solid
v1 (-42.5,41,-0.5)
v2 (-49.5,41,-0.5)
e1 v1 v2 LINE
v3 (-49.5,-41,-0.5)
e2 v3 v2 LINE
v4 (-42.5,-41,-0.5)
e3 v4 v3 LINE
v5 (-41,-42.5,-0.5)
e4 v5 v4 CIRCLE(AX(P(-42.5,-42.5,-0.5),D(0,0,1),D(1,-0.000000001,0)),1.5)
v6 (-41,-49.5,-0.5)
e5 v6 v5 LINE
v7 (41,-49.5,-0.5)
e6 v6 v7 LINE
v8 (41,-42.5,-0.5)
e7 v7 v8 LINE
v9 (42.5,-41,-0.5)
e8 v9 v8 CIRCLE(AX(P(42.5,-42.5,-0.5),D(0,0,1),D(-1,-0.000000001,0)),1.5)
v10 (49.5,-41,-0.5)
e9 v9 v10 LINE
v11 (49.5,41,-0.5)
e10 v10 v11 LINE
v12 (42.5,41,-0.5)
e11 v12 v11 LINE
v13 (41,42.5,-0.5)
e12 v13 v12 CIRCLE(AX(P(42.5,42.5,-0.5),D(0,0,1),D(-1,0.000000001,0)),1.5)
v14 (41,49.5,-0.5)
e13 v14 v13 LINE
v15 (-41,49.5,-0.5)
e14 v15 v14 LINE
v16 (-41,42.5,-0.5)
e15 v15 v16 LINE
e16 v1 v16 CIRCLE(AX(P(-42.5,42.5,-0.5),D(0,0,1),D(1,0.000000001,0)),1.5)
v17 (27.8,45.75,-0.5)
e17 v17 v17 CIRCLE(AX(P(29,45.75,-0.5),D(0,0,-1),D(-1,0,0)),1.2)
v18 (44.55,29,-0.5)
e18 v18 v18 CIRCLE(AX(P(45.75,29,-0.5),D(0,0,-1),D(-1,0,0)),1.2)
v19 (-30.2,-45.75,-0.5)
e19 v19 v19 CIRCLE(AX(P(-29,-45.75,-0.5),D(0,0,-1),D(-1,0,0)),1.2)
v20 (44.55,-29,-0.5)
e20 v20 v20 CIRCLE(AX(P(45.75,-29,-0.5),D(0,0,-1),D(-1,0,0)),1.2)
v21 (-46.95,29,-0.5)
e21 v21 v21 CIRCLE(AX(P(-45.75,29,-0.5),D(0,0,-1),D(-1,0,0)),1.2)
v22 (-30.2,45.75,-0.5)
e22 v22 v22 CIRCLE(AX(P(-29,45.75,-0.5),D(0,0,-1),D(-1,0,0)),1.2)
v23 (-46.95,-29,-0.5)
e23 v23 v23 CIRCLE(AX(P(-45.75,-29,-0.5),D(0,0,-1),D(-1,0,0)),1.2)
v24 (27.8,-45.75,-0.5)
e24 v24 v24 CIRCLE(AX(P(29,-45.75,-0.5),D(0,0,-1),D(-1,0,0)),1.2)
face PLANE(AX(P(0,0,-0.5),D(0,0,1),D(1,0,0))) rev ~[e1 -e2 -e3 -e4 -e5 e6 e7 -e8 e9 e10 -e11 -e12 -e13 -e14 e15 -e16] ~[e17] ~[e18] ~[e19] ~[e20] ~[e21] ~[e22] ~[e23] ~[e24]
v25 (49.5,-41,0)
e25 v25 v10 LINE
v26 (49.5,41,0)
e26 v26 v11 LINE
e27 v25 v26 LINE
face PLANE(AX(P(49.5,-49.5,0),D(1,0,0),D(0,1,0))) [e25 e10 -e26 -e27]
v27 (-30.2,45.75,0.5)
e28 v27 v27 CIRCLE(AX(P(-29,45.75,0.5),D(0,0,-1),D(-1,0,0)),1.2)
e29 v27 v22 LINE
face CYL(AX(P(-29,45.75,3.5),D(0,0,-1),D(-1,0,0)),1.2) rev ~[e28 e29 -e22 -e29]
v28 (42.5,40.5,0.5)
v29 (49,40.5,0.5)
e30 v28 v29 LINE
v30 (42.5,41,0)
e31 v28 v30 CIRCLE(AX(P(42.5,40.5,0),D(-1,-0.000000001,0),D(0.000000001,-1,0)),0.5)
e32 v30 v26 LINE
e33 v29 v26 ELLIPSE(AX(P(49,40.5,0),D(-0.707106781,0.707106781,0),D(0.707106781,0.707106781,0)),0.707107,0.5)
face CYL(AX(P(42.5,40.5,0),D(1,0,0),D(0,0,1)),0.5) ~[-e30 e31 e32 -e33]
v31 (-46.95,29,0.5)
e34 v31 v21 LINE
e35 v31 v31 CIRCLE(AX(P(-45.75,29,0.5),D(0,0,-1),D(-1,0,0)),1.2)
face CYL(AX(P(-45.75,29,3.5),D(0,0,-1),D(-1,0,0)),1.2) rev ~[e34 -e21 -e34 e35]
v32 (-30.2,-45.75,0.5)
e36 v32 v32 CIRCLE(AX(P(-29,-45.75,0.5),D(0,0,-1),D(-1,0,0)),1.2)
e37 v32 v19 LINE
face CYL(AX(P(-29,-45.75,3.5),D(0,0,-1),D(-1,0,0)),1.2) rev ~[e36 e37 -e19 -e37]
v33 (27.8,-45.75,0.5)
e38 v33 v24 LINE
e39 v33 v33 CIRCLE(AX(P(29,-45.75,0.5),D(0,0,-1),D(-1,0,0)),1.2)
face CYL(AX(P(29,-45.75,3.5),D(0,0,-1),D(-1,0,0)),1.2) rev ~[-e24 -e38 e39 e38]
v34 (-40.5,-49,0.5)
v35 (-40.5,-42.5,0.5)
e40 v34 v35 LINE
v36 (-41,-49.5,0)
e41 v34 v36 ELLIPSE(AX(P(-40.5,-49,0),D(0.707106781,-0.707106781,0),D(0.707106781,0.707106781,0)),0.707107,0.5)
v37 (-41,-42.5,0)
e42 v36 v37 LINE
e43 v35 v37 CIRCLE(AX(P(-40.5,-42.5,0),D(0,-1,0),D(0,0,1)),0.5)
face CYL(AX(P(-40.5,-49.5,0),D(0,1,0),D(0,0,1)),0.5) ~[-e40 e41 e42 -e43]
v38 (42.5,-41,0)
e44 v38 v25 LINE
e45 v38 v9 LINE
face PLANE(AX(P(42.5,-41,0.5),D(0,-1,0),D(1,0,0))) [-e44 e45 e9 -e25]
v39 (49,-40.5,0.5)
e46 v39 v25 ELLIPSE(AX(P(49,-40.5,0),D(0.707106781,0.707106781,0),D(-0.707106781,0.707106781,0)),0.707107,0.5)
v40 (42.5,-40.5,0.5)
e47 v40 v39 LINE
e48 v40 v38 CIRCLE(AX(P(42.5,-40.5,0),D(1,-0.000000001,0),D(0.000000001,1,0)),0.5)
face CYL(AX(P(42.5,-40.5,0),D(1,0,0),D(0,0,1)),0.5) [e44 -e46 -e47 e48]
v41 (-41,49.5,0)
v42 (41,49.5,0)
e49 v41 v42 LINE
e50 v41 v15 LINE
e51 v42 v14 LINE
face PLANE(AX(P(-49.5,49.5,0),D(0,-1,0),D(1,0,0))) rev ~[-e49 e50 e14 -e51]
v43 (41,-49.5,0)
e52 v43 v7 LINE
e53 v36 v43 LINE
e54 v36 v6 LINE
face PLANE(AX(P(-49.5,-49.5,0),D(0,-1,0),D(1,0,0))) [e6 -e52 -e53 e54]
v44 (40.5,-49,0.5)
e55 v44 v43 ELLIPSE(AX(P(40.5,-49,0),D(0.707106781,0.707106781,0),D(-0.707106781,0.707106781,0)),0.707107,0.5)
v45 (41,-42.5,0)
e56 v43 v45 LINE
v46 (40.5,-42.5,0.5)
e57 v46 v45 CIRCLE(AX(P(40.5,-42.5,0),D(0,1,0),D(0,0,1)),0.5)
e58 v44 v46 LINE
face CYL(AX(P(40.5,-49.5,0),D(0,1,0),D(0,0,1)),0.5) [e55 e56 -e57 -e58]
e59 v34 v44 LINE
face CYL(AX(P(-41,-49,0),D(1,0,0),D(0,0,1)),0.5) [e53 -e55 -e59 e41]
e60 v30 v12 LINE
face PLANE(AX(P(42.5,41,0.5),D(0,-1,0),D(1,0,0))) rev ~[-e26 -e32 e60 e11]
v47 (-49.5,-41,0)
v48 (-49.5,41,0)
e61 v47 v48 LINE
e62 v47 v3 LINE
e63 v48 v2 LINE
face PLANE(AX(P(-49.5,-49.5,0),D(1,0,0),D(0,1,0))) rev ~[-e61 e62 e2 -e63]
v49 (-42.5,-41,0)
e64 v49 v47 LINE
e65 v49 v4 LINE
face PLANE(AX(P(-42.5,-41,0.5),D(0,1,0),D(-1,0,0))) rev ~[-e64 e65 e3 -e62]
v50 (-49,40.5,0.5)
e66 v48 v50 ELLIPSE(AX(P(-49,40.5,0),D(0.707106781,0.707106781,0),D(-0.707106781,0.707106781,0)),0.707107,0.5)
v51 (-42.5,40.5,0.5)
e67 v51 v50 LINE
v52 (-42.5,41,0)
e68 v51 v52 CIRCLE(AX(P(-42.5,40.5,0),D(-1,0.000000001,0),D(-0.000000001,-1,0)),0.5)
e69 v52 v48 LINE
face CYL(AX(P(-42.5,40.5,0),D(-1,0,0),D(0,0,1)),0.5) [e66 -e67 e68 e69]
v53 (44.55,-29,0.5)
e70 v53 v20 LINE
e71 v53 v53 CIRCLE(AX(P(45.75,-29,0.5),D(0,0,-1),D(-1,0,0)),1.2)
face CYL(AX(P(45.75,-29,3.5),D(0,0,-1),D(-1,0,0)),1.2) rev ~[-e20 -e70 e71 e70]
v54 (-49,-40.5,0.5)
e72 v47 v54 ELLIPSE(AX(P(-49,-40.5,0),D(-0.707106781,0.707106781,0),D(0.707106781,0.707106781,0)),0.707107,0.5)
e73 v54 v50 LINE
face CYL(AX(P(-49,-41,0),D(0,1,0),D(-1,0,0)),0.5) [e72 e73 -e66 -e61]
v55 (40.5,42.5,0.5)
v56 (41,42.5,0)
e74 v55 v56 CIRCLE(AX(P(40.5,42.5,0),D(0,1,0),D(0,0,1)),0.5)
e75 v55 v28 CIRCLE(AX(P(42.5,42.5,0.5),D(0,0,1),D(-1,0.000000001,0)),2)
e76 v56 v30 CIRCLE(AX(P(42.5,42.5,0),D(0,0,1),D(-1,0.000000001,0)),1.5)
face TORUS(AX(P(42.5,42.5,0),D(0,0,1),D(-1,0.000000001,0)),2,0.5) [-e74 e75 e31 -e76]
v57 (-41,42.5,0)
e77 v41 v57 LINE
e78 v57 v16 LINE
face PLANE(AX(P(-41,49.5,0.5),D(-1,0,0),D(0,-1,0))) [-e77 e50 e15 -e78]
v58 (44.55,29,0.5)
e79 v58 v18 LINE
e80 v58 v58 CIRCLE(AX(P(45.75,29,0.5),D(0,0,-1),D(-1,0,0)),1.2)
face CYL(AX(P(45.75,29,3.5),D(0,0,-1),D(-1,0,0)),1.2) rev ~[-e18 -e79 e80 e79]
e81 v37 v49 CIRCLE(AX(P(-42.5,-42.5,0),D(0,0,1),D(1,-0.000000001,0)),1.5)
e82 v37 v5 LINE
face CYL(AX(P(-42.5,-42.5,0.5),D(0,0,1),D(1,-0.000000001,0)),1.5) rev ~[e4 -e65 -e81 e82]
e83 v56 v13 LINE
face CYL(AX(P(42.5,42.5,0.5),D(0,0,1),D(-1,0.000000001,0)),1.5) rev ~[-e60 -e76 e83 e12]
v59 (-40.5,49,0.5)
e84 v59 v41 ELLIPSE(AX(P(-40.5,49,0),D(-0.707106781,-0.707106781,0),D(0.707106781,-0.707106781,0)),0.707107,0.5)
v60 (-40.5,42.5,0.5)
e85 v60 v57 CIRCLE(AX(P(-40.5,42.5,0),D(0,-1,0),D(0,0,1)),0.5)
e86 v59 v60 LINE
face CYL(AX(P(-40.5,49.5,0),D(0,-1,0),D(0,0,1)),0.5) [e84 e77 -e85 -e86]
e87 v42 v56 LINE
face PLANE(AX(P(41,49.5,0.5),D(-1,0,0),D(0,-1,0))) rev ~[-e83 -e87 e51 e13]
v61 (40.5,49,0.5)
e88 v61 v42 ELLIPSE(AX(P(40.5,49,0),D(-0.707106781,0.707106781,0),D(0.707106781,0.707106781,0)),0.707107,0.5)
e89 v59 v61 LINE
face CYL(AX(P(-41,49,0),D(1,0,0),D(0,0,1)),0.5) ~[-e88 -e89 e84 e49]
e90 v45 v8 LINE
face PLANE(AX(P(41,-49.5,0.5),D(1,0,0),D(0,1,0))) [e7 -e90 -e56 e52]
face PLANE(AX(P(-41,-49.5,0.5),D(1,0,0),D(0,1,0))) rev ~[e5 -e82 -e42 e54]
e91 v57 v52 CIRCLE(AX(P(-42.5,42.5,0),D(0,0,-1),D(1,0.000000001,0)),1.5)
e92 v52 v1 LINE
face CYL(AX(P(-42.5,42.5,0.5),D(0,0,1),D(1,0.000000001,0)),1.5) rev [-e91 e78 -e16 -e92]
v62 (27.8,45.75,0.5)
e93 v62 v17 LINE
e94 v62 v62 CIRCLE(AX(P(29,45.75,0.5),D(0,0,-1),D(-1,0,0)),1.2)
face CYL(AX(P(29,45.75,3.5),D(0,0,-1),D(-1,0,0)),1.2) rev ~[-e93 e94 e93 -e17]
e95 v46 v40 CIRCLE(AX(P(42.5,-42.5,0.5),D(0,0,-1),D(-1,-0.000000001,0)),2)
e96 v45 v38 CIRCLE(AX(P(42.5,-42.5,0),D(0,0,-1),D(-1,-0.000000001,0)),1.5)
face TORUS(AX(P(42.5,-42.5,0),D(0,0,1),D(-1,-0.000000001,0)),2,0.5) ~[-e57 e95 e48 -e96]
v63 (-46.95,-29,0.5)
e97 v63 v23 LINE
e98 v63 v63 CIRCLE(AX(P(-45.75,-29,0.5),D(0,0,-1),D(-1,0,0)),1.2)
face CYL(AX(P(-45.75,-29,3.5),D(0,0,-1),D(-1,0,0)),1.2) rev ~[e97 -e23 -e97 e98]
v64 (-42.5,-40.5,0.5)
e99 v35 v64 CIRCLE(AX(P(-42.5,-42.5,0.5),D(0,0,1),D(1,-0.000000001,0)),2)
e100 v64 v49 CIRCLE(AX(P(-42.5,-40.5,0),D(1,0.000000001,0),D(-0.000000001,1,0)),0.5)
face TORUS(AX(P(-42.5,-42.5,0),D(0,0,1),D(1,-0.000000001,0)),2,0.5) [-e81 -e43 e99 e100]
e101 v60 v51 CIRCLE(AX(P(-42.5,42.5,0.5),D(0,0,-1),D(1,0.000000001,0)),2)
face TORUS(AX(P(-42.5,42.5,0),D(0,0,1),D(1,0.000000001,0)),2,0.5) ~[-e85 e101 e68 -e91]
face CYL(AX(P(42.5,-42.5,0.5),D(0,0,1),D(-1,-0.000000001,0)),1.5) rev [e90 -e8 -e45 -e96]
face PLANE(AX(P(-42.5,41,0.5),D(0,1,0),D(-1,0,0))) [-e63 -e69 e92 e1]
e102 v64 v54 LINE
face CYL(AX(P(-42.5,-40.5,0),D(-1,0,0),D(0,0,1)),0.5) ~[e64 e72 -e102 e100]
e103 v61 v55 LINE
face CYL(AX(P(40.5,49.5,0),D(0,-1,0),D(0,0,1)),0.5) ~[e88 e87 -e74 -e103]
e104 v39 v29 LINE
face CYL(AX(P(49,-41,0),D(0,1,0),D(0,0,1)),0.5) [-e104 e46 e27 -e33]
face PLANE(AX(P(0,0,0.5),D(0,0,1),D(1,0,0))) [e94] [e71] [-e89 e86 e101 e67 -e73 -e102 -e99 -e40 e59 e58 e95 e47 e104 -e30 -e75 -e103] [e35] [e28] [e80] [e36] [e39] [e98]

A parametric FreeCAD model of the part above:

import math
import FreeCAD as App
import Part
import Sketcher
from FreeCAD import Vector
Q = App.Units.Quantity


def edges_at(feature, points):
    """Names of the edges that pass closest to the given points."""
    edges = feature.Shape.Edges
    near = lambda p: min(range(len(edges)), key=lambda i: edges[i].distToShape(Part.Vertex(*p))[0])
    return sorted({f"Edge{near(p) + 1}" for p in points})


def add_polygon(sketch, points):
    """Adds a closed chain of lines whose ends are joined by coincident constraints."""
    first, n = sketch.GeometryCount, len(points)
    for a, b in zip(points, points[1:] + points[:1]):
        sketch.addGeometry(Part.LineSegment(App.Vector(*a, 0), App.Vector(*b, 0)), False)
    for i in range(n):
        sketch.addConstraint(Sketcher.Constraint("Coincident", first + i, 2, first + (i + 1) % n, 1))

doc = App.newDocument("Part")
body = doc.addObject("PartDesign::Body", "Body")

# Sketch on XY plane
sketch1 = body.newObject("Sketcher::SketchObject", "Sketch")
sketch1.AttachmentSupport = (doc.getObject("XY_Plane"), [""])
sketch1.MapMode = "FlatFace"
add_polygon(sketch1, [(-49.5, 49.5), (-49.5, -49.5), (49.5, -49.5), (49.5, 49.5)])  # lines 0-3
sketch1.addConstraint(Sketcher.Constraint("Vertical", 0))
sketch1.addConstraint(Sketcher.Constraint("Horizontal", 1))
sketch1.addConstraint(Sketcher.Constraint("Vertical", 2))
sketch1.addConstraint(Sketcher.Constraint("Horizontal", 3))
sketch1.addConstraint(Sketcher.Constraint("Symmetric", 0, 2, 2, 2, -1, 1))
sketch1.addConstraint(Sketcher.Constraint("Equal", 3, 0))
sketch1.addConstraint(Sketcher.Constraint("DistanceX", 1, 1, 1, 2, Q("99 mm")))
pad1 = body.newObject("PartDesign::Pad", "Pad")
pad1.Profile = sketch1
pad1.Length = 1
pad1.Midplane = True

# Sketch on XY plane
sketch2 = body.newObject("Sketcher::SketchObject", "Sketch001")
sketch2.AttachmentSupport = (doc.getObject("XY_Plane"), [""])
sketch2.MapMode = "FlatFace"
sketch2.AttachmentOffset = App.Placement(Vector(0, 0, 0.5), App.Rotation())
sketch2.addGeometry(Part.LineSegment(Vector(-41, 49.5, 0), Vector(-49.5, 49.5, 0)), False)
sketch2.addGeometry(Part.LineSegment(Vector(-49.5, 49.5, 0), Vector(-49.5, 41, 0)), False)
sketch2.addGeometry(Part.LineSegment(Vector(-49.5, 41, 0), Vector(-42.5, 41, 0)), False)
sketch2.addGeometry(Part.ArcOfCircle(Part.Circle(Vector(-42.5, 42.5, 0), Vector(0, 0, 1), 1.5), math.radians(-90), math.radians(0)), False)
sketch2.addGeometry(Part.LineSegment(Vector(-41, 42.5, 0), Vector(-41, 49.5, 0)), False)
sketch2.addGeometry(Part.LineSegment(Vector(49.5, 49.5, 0), Vector(41, 49.5, 0)), False)
sketch2.addGeometry(Part.LineSegment(Vector(41, 49.5, 0), Vector(41, 42.5, 0)), False)
sketch2.addGeometry(Part.ArcOfCircle(Part.Circle(Vector(42.5, 42.5, 0), Vector(0, 0, 1), 1.5), math.radians(180), math.radians(270)), False)
sketch2.addGeometry(Part.LineSegment(Vector(42.5, 41, 0), Vector(49.5, 41, 0)), False)
sketch2.addGeometry(Part.LineSegment(Vector(49.5, 41, 0), Vector(49.5, 49.5, 0)), False)
sketch2.addGeometry(Part.LineSegment(Vector(-49.5, -49.5, 0), Vector(-41, -49.5, 0)), False)
sketch2.addGeometry(Part.LineSegment(Vector(-41, -49.5, 0), Vector(-41, -42.5, 0)), False)
sketch2.addGeometry(Part.ArcOfCircle(Part.Circle(Vector(-42.5, -42.5, 0), Vector(0, 0, 1), 1.5), math.radians(0), math.radians(90)), False)
sketch2.addGeometry(Part.LineSegment(Vector(-42.5, -41, 0), Vector(-49.5, -41, 0)), False)
sketch2.addGeometry(Part.LineSegment(Vector(-49.5, -41, 0), Vector(-49.5, -49.5, 0)), False)
sketch2.addGeometry(Part.LineSegment(Vector(41, -49.5, 0), Vector(49.5, -49.5, 0)), False)
sketch2.addGeometry(Part.LineSegment(Vector(49.5, -49.5, 0), Vector(49.5, -41, 0)), False)
sketch2.addGeometry(Part.LineSegment(Vector(49.5, -41, 0), Vector(42.5, -41, 0)), False)
sketch2.addGeometry(Part.ArcOfCircle(Part.Circle(Vector(42.5, -42.5, 0), Vector(0, 0, 1), 1.5), math.radians(90), math.radians(180)), False)
sketch2.addGeometry(Part.LineSegment(Vector(41, -42.5, 0), Vector(41, -49.5, 0)), False)
sketch2.addConstraint(Sketcher.Constraint("Coincident", 0, 2, 1, 1))
sketch2.addConstraint(Sketcher.Constraint("Coincident", 1, 2, 2, 1))
sketch2.addConstraint(Sketcher.Constraint("Tangent", 2, 2, 3, 1))
sketch2.addConstraint(Sketcher.Constraint("Tangent", 3, 2, 4, 1))
sketch2.addConstraint(Sketcher.Constraint("Coincident", 4, 2, 0, 1))
sketch2.addConstraint(Sketcher.Constraint("Coincident", 5, 2, 6, 1))
sketch2.addConstraint(Sketcher.Constraint("Tangent", 6, 2, 7, 1))
sketch2.addConstraint(Sketcher.Constraint("Tangent", 7, 2, 8, 1))
sketch2.addConstraint(Sketcher.Constraint("Coincident", 8, 2, 9, 1))
sketch2.addConstraint(Sketcher.Constraint("Coincident", 9, 2, 5, 1))
sketch2.addConstraint(Sketcher.Constraint("Coincident", 10, 2, 11, 1))
sketch2.addConstraint(Sketcher.Constraint("Tangent", 11, 2, 12, 1))
sketch2.addConstraint(Sketcher.Constraint("Tangent", 12, 2, 13, 1))
sketch2.addConstraint(Sketcher.Constraint("Coincident", 13, 2, 14, 1))
sketch2.addConstraint(Sketcher.Constraint("Coincident", 14, 2, 10, 1))
sketch2.addConstraint(Sketcher.Constraint("Coincident", 15, 2, 16, 1))
sketch2.addConstraint(Sketcher.Constraint("Coincident", 16, 2, 17, 1))
sketch2.addConstraint(Sketcher.Constraint("Tangent", 17, 2, 18, 1))
sketch2.addConstraint(Sketcher.Constraint("Tangent", 18, 2, 19, 1))
sketch2.addConstraint(Sketcher.Constraint("Coincident", 19, 2, 15, 1))
sketch2.addConstraint(Sketcher.Constraint("Horizontal", 0))
sketch2.addConstraint(Sketcher.Constraint("Vertical", 1))
sketch2.addConstraint(Sketcher.Constraint("Horizontal", 2))
sketch2.addConstraint(Sketcher.Constraint("Vertical", 4))
sketch2.addConstraint(Sketcher.Constraint("Horizontal", 5))
sketch2.addConstraint(Sketcher.Constraint("Vertical", 6))
sketch2.addConstraint(Sketcher.Constraint("Horizontal", 8))
sketch2.addConstraint(Sketcher.Constraint("Vertical", 9))
sketch2.addConstraint(Sketcher.Constraint("Horizontal", 10))
sketch2.addConstraint(Sketcher.Constraint("Vertical", 11))
sketch2.addConstraint(Sketcher.Constraint("Horizontal", 13))
sketch2.addConstraint(Sketcher.Constraint("Vertical", 14))
sketch2.addConstraint(Sketcher.Constraint("Horizontal", 15))
sketch2.addConstraint(Sketcher.Constraint("Vertical", 16))
sketch2.addConstraint(Sketcher.Constraint("Horizontal", 17))
sketch2.addConstraint(Sketcher.Constraint("Vertical", 19))
sketch2.addConstraint(Sketcher.Constraint("Equal", 3, 7))
sketch2.addConstraint(Sketcher.Constraint("Equal", 7, 12))
sketch2.addConstraint(Sketcher.Constraint("Equal", 12, 18))
sketch2.addConstraint(Sketcher.Constraint("Symmetric", 7, 3, 12, 3, -1, 1))
sketch2.addConstraint(Sketcher.Constraint("Symmetric", 3, 3, 18, 3, -1, 1))
sketch2.addConstraint(Sketcher.Constraint("Symmetric", 9, 2, 14, 2, -1, 1))
sketch2.addConstraint(Sketcher.Constraint("Symmetric", 0, 2, 15, 2, -1, 1))
sketch2.addConstraint(Sketcher.Constraint("Symmetric", 3, 3, 7, 3, -2))
sketch2.addConstraint(Sketcher.Constraint("Symmetric", 0, 2, 9, 2, -2))
sketch2.addConstraint(Sketcher.Constraint("Equal", 15, 1))
sketch2.addConstraint(Sketcher.Constraint("Radius", 3, Q("1.5 mm")))
sketch2.addConstraint(Sketcher.Constraint("DistanceX", 2, 1, 2, 2, Q("7 mm")))
sketch2.addConstraint(Sketcher.Constraint("DistanceY", -1, 1, 1, 2, Q("41 mm")))
sketch2.addConstraint(Sketcher.Constraint("DistanceX", 3, 2, -1, 1, Q("41 mm")))
pocket1 = body.newObject("PartDesign::Pocket", "Pocket")
pocket1.Profile = sketch2
pocket1.Type = "ThroughAll"

# Sketch on XY plane
sketch3 = body.newObject("Sketcher::SketchObject", "Sketch002")
sketch3.AttachmentSupport = (doc.getObject("XY_Plane"), [""])
sketch3.MapMode = "FlatFace"
sketch3.AttachmentOffset = App.Placement(Vector(0, 0, 0.5), App.Rotation())
sketch3.addGeometry(Part.Circle(Vector(-45.75, 29, 0), Vector(0, 0, 1), 1.2), False)
sketch3.addGeometry(Part.Circle(Vector(-29, 45.75, 0), Vector(0, 0, 1), 1.2), False)
sketch3.addGeometry(Part.Circle(Vector(29, 45.75, 0), Vector(0, 0, 1), 1.2), False)
sketch3.addGeometry(Part.Circle(Vector(45.75, 29, 0), Vector(0, 0, 1), 1.2), False)
sketch3.addGeometry(Part.Circle(Vector(45.75, -29, 0), Vector(0, 0, 1), 1.2), False)
sketch3.addGeometry(Part.Circle(Vector(29, -45.75, 0), Vector(0, 0, 1), 1.2), False)
sketch3.addGeometry(Part.Circle(Vector(-29, -45.75, 0), Vector(0, 0, 1), 1.2), False)
sketch3.addGeometry(Part.Circle(Vector(-45.75, -29, 0), Vector(0, 0, 1), 1.2), False)
sketch3.addConstraint(Sketcher.Constraint("Equal", 0, 1))
sketch3.addConstraint(Sketcher.Constraint("Equal", 1, 2))
sketch3.addConstraint(Sketcher.Constraint("Equal", 2, 3))
sketch3.addConstraint(Sketcher.Constraint("Equal", 3, 4))
sketch3.addConstraint(Sketcher.Constraint("Equal", 4, 5))
sketch3.addConstraint(Sketcher.Constraint("Equal", 5, 6))
sketch3.addConstraint(Sketcher.Constraint("Equal", 6, 7))
sketch3.addConstraint(Sketcher.Constraint("Symmetric", 0, 3, 4, 3, -1, 1))
sketch3.addConstraint(Sketcher.Constraint("Symmetric", 1, 3, 5, 3, -1, 1))
sketch3.addConstraint(Sketcher.Constraint("Symmetric", 2, 3, 6, 3, -1, 1))
sketch3.addConstraint(Sketcher.Constraint("Symmetric", 3, 3, 7, 3, -1, 1))
sketch3.addConstraint(Sketcher.Constraint("Symmetric", 1, 3, 2, 3, -2))
sketch3.addConstraint(Sketcher.Constraint("Symmetric", 0, 3, 3, 3, -2))
sketch3.addConstraint(Sketcher.Constraint("Diameter", 0, Q("2.4 mm")))
sketch3.addConstraint(Sketcher.Constraint("DistanceY", -1, 1, 0, 3, Q("29 mm")))
sketch3.addConstraint(Sketcher.Constraint("DistanceX", 1, 3, -1, 1, Q("29 mm")))
sketch3.addConstraint(Sketcher.Constraint("DistanceX", 0, 3, 3, 3, Q("91.5 mm")))
sketch3.addConstraint(Sketcher.Constraint("DistanceY", 5, 3, 2, 3, Q("91.5 mm")))
doc.recompute()
hole = body.newObject("PartDesign::Hole", "Hole")
hole.Profile = sketch3
hole.ThreadType = "None"
hole.Diameter = 2.4
hole.DepthType = "Dimension"
hole.Depth = 3
hole.DrillPoint = "Angled"
hole.DrillPointAngle = 118
doc.recompute()

fillet = body.newObject("PartDesign::Fillet", "Fillet")
fillet.Base = (hole, edges_at(hole, [
    (-49.5, 0, 0.5),
    (-46, 41, 0.5),
    (-41.439, 41.439, 0.5),
    (-41, 46, 0.5),
    (0, 49.5, 0.5),
    (41.439, 41.439, 0.5),
    (46, 41, 0.5),
    (41, 46, 0.5),
    (49.5, 0, 0.5),
    (41.439, -41.439, 0.5),
    (41, -46, 0.5),
    (46, -41, 0.5),
    (0, -49.5, 0.5),
    (-41, -46, 0.5),
    (-41.439, -41.439, 0.5),
    (-46, -41, 0.5),
]))
fillet.Radius = 0.5

doc.recompute()
